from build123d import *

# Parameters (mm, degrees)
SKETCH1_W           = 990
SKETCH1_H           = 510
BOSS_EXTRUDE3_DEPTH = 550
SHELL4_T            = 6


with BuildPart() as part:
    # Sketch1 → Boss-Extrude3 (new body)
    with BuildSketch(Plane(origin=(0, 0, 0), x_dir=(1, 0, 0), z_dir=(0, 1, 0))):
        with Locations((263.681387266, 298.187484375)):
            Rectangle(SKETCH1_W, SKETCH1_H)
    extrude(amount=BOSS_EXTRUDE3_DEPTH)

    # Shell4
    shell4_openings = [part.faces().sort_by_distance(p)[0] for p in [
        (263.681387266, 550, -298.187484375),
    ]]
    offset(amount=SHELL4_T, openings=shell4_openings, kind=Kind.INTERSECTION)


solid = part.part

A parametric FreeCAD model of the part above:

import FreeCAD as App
import Part
import Sketcher


def faces_at(feature, points):
    """Names of the faces that lie closest to the given points."""
    faces = feature.Shape.Faces
    near = lambda p: min(range(len(faces)), key=lambda i: faces[i].distToShape(Part.Vertex(*p))[0])
    return sorted({f"Face{near(p) + 1}" for p in points})


def add_polygon(sketch, points):
    """Adds a closed chain of lines whose ends are joined by coincident constraints."""
    first, n = sketch.GeometryCount, len(points)
    for a, b in zip(points, points[1:] + points[:1]):
        sketch.addGeometry(Part.LineSegment(App.Vector(*a, 0), App.Vector(*b, 0)), False)
    for i in range(n):
        sketch.addConstraint(Sketcher.Constraint("Coincident", first + i, 2, first + (i + 1) % n, 1))

doc = App.newDocument("Part")
body = doc.addObject("PartDesign::Body", "Body")

# Sketch on XZ plane
sketch1 = body.newObject("Sketcher::SketchObject", "Sketch")
sketch1.AttachmentSupport = (doc.getObject("XZ_Plane"), [""])
sketch1.MapMode = "FlatFace"
add_polygon(sketch1, [(-231, -553), (-231, -43), (759, -43), (759, -553)])  # lines 0-3
sketch1.addConstraint([
    Sketcher.Constraint("Vertical", 0),
    Sketcher.Constraint("Horizontal", 1),
    Sketcher.Constraint("Vertical", 2),
    Sketcher.Constraint("Horizontal", 3),
    Sketcher.Constraint("DistanceX", 1, 1, 1, 2, 990.0),
    Sketcher.Constraint("DistanceY", 0, 1, 0, 2, 510.0),
    Sketcher.Constraint("DistanceX", 0, 2, -1, 1, 231.318613),
    Sketcher.Constraint("DistanceY", 0, 2, -1, 1, 43.187484),
])
pad1 = body.newObject("PartDesign::Pad", "Pad")
pad1.Profile = sketch1
pad1.Length = 550
pad1.Reversed = True
doc.recompute()

thickness = body.newObject("PartDesign::Thickness", "Thickness")
thickness.Base = (pad1, faces_at(pad1, [(263.681, 550, -298.187)]))
thickness.Value = 6
thickness.Reversed = False
thickness.Join = "Intersection"

doc.recompute()
